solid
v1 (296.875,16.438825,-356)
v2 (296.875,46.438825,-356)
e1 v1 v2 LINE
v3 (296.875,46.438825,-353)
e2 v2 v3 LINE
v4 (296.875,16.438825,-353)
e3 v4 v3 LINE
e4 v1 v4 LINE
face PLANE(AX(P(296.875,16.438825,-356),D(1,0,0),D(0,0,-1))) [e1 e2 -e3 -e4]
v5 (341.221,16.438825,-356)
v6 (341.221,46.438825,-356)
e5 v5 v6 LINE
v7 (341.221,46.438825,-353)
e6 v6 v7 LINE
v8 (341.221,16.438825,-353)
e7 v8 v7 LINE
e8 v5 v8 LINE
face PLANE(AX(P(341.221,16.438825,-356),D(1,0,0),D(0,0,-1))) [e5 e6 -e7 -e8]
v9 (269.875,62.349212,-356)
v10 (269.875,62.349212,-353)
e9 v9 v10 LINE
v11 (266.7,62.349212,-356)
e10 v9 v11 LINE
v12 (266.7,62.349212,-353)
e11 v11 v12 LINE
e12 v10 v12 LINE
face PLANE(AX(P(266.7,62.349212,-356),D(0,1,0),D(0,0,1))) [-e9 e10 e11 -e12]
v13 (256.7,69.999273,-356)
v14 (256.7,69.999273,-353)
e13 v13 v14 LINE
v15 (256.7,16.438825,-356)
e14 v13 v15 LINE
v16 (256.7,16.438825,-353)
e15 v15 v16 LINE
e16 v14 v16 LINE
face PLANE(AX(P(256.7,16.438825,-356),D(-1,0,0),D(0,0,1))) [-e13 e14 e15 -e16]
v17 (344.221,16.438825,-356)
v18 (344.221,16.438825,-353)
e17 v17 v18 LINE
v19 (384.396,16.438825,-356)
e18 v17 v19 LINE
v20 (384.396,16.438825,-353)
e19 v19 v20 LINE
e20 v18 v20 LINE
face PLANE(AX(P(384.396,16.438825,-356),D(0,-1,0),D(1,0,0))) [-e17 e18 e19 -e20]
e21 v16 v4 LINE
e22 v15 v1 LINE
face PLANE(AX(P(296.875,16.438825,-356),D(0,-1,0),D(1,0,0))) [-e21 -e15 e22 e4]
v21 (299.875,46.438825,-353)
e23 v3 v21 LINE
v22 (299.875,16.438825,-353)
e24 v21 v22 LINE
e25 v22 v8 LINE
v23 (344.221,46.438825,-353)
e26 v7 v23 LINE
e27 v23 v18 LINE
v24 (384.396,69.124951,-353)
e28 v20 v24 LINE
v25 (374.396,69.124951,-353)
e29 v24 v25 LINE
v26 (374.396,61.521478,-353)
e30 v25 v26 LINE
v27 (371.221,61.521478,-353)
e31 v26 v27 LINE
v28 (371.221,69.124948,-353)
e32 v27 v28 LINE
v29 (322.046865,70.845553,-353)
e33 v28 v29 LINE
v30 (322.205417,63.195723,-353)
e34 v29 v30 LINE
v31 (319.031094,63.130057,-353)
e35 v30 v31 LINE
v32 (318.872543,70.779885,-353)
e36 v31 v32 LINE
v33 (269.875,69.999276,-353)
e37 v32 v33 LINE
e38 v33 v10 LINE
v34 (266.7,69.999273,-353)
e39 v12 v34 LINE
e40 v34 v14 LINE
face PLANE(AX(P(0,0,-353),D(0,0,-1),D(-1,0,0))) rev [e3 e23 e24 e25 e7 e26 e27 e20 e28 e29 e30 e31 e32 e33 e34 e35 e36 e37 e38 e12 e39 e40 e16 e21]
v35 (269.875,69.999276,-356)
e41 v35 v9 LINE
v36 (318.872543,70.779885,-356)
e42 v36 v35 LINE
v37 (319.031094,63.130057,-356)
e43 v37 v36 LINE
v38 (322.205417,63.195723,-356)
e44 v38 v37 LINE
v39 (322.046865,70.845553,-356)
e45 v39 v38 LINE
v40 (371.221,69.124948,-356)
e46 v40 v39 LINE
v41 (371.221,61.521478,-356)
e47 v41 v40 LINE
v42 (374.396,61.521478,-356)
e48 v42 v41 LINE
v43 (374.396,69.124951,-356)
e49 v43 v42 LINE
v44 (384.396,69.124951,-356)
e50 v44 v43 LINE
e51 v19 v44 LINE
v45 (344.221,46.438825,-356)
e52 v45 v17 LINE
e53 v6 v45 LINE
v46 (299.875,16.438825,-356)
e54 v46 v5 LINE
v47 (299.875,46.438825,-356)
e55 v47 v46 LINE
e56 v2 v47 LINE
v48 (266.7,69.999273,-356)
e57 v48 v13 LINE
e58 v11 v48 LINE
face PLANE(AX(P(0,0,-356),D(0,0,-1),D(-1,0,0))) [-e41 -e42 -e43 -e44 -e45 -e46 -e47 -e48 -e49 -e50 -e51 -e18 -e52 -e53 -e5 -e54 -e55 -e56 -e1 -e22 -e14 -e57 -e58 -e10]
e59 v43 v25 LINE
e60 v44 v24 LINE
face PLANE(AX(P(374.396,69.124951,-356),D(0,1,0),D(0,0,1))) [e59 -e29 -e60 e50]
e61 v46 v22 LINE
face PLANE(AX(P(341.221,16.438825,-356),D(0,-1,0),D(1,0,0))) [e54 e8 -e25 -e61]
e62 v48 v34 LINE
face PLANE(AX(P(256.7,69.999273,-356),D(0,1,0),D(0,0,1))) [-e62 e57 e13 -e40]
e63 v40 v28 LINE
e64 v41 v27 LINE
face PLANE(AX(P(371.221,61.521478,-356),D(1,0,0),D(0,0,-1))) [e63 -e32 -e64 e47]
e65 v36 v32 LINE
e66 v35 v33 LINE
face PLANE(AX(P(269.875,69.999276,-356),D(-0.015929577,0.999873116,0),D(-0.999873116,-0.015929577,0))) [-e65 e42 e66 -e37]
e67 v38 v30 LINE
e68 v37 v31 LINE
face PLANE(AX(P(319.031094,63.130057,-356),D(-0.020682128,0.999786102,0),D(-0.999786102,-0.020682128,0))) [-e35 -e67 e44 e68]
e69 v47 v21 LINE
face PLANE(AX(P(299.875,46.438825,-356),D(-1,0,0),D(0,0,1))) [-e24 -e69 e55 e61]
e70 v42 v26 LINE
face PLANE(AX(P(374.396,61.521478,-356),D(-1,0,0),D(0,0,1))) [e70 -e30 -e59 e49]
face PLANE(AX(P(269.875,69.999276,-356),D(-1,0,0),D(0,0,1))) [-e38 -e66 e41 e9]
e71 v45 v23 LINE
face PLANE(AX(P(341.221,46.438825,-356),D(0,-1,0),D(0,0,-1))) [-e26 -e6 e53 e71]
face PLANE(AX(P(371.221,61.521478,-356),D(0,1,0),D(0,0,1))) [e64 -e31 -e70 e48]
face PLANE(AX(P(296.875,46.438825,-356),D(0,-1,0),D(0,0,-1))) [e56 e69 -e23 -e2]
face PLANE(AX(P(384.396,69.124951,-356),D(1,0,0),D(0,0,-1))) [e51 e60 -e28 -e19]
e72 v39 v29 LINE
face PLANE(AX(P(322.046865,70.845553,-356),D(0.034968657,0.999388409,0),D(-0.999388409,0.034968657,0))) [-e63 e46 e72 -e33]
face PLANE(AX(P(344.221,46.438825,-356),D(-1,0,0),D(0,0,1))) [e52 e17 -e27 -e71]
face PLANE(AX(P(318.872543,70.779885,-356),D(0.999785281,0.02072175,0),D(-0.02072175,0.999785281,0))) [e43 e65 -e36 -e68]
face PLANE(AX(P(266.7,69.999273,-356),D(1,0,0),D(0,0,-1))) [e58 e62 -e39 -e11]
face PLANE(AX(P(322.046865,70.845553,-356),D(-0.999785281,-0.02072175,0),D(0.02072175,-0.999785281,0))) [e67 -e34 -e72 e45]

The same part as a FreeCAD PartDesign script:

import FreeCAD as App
import Part
import Sketcher
from FreeCAD import Vector
Q = App.Units.Quantity


def add_polygon(sketch, points):
    """Adds a closed chain of lines whose ends are joined by coincident constraints."""
    first, n = sketch.GeometryCount, len(points)
    for a, b in zip(points, points[1:] + points[:1]):
        sketch.addGeometry(Part.LineSegment(App.Vector(*a, 0), App.Vector(*b, 0)), False)
    for i in range(n):
        sketch.addConstraint(Sketcher.Constraint("Coincident", first + i, 2, first + (i + 1) % n, 1))

doc = App.newDocument("Part")
body = doc.addObject("PartDesign::Body", "Body")

# Sketch on XY plane
sketch1 = body.newObject("Sketcher::SketchObject", "Sketch")
sketch1.AttachmentSupport = (doc.getObject("XY_Plane"), [""])
sketch1.MapMode = "FlatFace"
sketch1.AttachmentOffset = App.Placement(Vector(0, 0, -353), App.Rotation())
add_polygon(sketch1, [(374.396, 61.521478), (371.221, 61.521478), (371.221, 69.124948), (322.046865, 70.845553), (322.205417, 63.195723), (319.031094, 63.130057), (318.872543, 70.779885), (269.875, 69.999276), (269.875, 62.349212), (266.7, 62.349212), (266.7, 69.999273), (256.7, 69.999273), (256.7, 16.438825), (296.875, 16.438825), (296.875, 46.438825), (299.875, 46.438825), (299.875, 16.438825), (341.221, 16.438825), (341.221, 46.438825), (344.221, 46.438825), (344.221, 16.438825), (384.396, 16.438825), (384.396, 69.124951), (374.396, 69.124951)])  # lines 0-23
sketch1.addConstraint([
    Sketcher.Constraint("Horizontal", 0),
    Sketcher.Constraint("Vertical", 1),
    Sketcher.Constraint("Vertical", 7),
    Sketcher.Constraint("Horizontal", 8),
    Sketcher.Constraint("Vertical", 9),
    Sketcher.Constraint("Horizontal", 10),
    Sketcher.Constraint("Vertical", 11),
    Sketcher.Constraint("Horizontal", 12),
    Sketcher.Constraint("Vertical", 13),
    Sketcher.Constraint("Horizontal", 14),
    Sketcher.Constraint("Vertical", 15),
    Sketcher.Constraint("Horizontal", 16),
    Sketcher.Constraint("Vertical", 17),
    Sketcher.Constraint("Horizontal", 18),
    Sketcher.Constraint("Vertical", 19),
    Sketcher.Constraint("Horizontal", 20),
    Sketcher.Constraint("Vertical", 21),
    Sketcher.Constraint("Horizontal", 22),
    Sketcher.Constraint("Vertical", 23),
    Sketcher.Constraint("Parallel", 3, 5),
    Sketcher.Constraint("Horizontal", 12, 2, 15, 2),
    Sketcher.Constraint("Horizontal", 14, 2, 17, 2),
    Sketcher.Constraint("Horizontal", 16, 2, 19, 2),
    Sketcher.Constraint("Equal", 0, 8),
    Sketcher.Constraint("Equal", 14, 18),
    Sketcher.Constraint("Equal", 12, 20),
    Sketcher.Constraint("Equal", 10, 22),
    Sketcher.Constraint("DistanceX", 10, 2, 10, 1, Q("10 mm")),
    Sketcher.Constraint("DistanceX", 14, 1, 14, 2, Q("3 mm")),
    Sketcher.Constraint("DistanceY", 13, 1, 13, 2, Q("30 mm")),
    Sketcher.Constraint("DistanceX", 7, 2, 12, 2, Q("27 mm")),
    Sketcher.Constraint("DistanceX", -1, 1, 8, 2, Q("266.7 mm")),
    Sketcher.Constraint("DistanceX", 0, 2, 0, 1, Q("3.175 mm")),
    Sketcher.Constraint("DistanceX", 16, 1, 16, 2, Q("41.346 mm")),
    Sketcher.Constraint("Distance", 4, Q("3.175001 mm")),
    Sketcher.Constraint("DistanceY", 1, 1, 1, 2, Q("7.60347 mm")),
    Sketcher.Constraint("DistanceY", 9, 1, 9, 2, Q("7.650062 mm")),
    Sketcher.Constraint("DistanceY", 11, 2, 11, 1, Q("53.560448 mm")),
    Sketcher.Constraint("Distance", 2, Q("49.204228 mm")),
    Sketcher.Constraint("Distance", 5, Q("7.651471 mm")),
    Sketcher.Constraint("Distance", 6, Q("49.00376 mm")),
    Sketcher.Constraint("DistanceY", 7, 2, 7, 1, Q("7.650064 mm")),
    Sketcher.Constraint("DistanceY", 21, 1, 21, 2, Q("52.686125 mm")),
    Sketcher.Constraint("DistanceY", 23, 2, 23, 1, Q("7.603473 mm")),
    Sketcher.Constraint("DistanceY", -1, 1, 0, 2, Q("61.521478 mm")),
    Sketcher.Constraint("DistanceX", 2, 2, 3, 2, Q("0.158552 mm")),
    Sketcher.Constraint("DistanceY", 3, 2, 2, 2, Q("7.649831 mm")),
    Sketcher.Constraint("DistanceX", 4, 2, 2, 2, Q("3.01577 mm")),
])
pad1 = body.newObject("PartDesign::Pad", "Pad")
pad1.Profile = sketch1
pad1.Length = 3
pad1.Reversed = True

doc.recompute()
